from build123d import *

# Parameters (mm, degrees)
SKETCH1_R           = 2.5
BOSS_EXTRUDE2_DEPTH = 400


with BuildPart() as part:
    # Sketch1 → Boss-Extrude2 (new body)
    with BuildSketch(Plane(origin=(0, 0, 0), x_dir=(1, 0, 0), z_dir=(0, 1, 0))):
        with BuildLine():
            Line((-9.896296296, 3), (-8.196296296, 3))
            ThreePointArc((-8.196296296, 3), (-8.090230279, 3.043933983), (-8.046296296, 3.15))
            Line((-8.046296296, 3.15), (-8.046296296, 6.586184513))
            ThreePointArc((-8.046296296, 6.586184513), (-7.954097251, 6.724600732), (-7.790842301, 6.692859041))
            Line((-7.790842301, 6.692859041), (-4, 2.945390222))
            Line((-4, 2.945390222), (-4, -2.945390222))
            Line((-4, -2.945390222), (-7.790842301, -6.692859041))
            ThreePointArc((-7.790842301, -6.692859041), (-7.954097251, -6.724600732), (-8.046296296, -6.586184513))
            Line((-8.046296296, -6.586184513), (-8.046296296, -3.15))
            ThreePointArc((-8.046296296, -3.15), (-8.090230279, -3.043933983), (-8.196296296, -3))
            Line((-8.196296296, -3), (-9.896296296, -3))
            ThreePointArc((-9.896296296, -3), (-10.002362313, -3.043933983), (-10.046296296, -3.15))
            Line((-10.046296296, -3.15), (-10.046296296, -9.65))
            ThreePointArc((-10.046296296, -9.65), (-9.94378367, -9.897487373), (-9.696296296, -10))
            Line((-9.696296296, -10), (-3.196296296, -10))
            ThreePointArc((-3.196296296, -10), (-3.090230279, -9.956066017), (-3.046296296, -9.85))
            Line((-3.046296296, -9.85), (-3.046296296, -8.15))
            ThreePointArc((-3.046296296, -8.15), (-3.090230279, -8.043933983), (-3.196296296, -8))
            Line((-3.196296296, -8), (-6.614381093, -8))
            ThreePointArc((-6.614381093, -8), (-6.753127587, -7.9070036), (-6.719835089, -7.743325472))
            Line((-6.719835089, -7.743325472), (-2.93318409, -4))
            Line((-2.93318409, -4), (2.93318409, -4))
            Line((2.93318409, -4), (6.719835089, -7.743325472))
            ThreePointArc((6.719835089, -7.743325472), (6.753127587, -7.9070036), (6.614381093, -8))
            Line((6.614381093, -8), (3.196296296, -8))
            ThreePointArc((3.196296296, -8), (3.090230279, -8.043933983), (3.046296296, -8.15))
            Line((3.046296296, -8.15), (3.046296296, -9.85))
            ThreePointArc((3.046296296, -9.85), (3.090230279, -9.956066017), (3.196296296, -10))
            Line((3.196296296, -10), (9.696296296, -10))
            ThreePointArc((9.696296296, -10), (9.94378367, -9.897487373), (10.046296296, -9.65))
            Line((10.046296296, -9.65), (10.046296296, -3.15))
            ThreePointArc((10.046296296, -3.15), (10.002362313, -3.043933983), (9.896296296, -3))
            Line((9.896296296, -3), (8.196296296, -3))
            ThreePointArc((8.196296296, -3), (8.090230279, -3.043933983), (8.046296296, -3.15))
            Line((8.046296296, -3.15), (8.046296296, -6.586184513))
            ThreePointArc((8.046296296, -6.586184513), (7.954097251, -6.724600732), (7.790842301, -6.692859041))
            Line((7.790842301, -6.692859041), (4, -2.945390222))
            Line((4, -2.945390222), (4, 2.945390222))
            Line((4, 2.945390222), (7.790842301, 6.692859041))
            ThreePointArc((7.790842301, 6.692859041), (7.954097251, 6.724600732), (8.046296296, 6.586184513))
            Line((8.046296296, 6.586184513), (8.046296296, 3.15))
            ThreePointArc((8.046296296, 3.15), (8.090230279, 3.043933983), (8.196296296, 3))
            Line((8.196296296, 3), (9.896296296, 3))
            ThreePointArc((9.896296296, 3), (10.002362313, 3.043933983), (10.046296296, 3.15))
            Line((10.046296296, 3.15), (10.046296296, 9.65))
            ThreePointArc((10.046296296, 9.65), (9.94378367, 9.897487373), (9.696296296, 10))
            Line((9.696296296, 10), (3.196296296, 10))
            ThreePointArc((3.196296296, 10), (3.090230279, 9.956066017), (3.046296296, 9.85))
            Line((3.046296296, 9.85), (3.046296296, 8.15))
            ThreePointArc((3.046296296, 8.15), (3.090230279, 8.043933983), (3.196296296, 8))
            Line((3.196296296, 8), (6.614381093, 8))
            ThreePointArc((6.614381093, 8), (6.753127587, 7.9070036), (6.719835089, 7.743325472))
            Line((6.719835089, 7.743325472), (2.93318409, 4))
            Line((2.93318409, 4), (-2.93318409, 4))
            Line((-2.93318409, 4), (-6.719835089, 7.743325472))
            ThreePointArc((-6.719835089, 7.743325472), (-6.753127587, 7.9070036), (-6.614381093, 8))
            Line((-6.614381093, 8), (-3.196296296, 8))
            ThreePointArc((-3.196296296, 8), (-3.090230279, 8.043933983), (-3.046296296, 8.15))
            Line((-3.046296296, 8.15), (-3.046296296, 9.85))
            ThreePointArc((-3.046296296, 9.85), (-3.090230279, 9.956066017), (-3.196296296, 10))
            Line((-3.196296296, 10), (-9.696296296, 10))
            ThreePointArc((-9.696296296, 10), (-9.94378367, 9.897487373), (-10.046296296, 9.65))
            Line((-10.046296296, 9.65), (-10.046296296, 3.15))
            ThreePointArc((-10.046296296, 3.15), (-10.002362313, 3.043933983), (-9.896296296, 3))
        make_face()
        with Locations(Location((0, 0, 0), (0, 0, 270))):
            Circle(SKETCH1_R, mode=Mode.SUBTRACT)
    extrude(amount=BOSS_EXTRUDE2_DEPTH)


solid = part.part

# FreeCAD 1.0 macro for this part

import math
import FreeCAD as App
import Part
import Sketcher

V = App.Vector

doc = App.newDocument("Part")
params = doc.addObject("Spreadsheet::Sheet", "Params")
for row, (alias, value) in enumerate([
    ("sketch1_diameter", "5 mm"),
    ("sketch1_radius", "0.15 mm"),
    ("sketch1_radius2", "0.35 mm"),
    ("sketch1_width", "1.7 mm"),
    ("sketch1_width2", "6.5 mm"),
    ("pad1_length", "400 mm"),
], start=1):
    params.set(f"A{row}", alias)
    params.set(f"B{row}", "=" + value)
    params.setAlias(f"B{row}", alias)

body = doc.addObject("PartDesign::Body", "Body")

# Sketch on XZ plane
sketch1 = doc.addObject("Sketcher::SketchObject", "Sketch")
body.addObject(sketch1)
sketch1.AttachmentSupport = (doc.XZ_Plane, [""])
sketch1.MapMode = "FlatFace"
sketch1.addGeometry(Part.LineSegment(V(-9.9, -3, 0), V(-8.2, -3, 0)), False)
sketch1.addGeometry(Part.ArcOfCircle(Part.Circle(V(-8.2, -3.15, 0), V(0, 0, 1), 0.15), math.radians(0), math.radians(90)), False)
sketch1.addGeometry(Part.LineSegment(V(-8.05, -3.15, 0), V(-8.05, -6.59, 0)), False)
sketch1.addGeometry(Part.ArcOfCircle(Part.Circle(V(-7.9, -6.59, 0), V(0, 0, 1), 0.15), math.radians(180), math.radians(315)), False)
sketch1.addGeometry(Part.LineSegment(V(-7.79, -6.69, 0), V(-4, -2.95, 0)), False)
sketch1.addGeometry(Part.LineSegment(V(-4, -2.95, 0), V(-4, 2.95, 0)), False)
sketch1.addGeometry(Part.LineSegment(V(-4, 2.95, 0), V(-7.79, 6.69, 0)), False)
sketch1.addGeometry(Part.ArcOfCircle(Part.Circle(V(-7.9, 6.59, 0), V(0, 0, 1), 0.15), math.radians(45), math.radians(180)), False)
sketch1.addGeometry(Part.LineSegment(V(-8.05, 6.59, 0), V(-8.05, 3.15, 0)), False)
sketch1.addGeometry(Part.ArcOfCircle(Part.Circle(V(-8.2, 3.15, 0), V(0, 0, 1), 0.15), math.radians(-90), math.radians(0)), False)
sketch1.addGeometry(Part.LineSegment(V(-8.2, 3, 0), V(-9.9, 3, 0)), False)
sketch1.addGeometry(Part.ArcOfCircle(Part.Circle(V(-9.9, 3.15, 0), V(0, 0, 1), 0.15), math.radians(-180), math.radians(-90)), False)
sketch1.addGeometry(Part.LineSegment(V(-10.05, 3.15, 0), V(-10.05, 9.65, 0)), False)
sketch1.addGeometry(Part.ArcOfCircle(Part.Circle(V(-9.7, 9.65, 0), V(0, 0, 1), 0.35), math.radians(90), math.radians(180)), False)
sketch1.addGeometry(Part.LineSegment(V(-9.7, 10, 0), V(-3.2, 10, 0)), False)
sketch1.addGeometry(Part.ArcOfCircle(Part.Circle(V(-3.2, 9.85, 0), V(0, 0, 1), 0.15), math.radians(0), math.radians(90)), False)
sketch1.addGeometry(Part.LineSegment(V(-3.05, 9.85, 0), V(-3.05, 8.15, 0)), False)
sketch1.addGeometry(Part.ArcOfCircle(Part.Circle(V(-3.2, 8.15, 0), V(0, 0, 1), 0.15), math.radians(-90), math.radians(0)), False)
sketch1.addGeometry(Part.LineSegment(V(-3.2, 8, 0), V(-6.61, 8, 0)), False)
sketch1.addGeometry(Part.ArcOfCircle(Part.Circle(V(-6.61, 7.85, 0), V(0, 0, 1), 0.15), math.radians(90), math.radians(225)), False)
sketch1.addGeometry(Part.LineSegment(V(-6.72, 7.74, 0), V(-2.93, 4, 0)), False)
sketch1.addGeometry(Part.LineSegment(V(-2.93, 4, 0), V(2.93, 4, 0)), False)
sketch1.addGeometry(Part.LineSegment(V(2.93, 4, 0), V(6.72, 7.74, 0)), False)
sketch1.addGeometry(Part.ArcOfCircle(Part.Circle(V(6.61, 7.85, 0), V(0, 0, 1), 0.15), math.radians(-45), math.radians(90)), False)
sketch1.addGeometry(Part.LineSegment(V(6.61, 8, 0), V(3.2, 8, 0)), False)
sketch1.addGeometry(Part.ArcOfCircle(Part.Circle(V(3.2, 8.15, 0), V(0, 0, 1), 0.15), math.radians(-180), math.radians(-90)), False)
sketch1.addGeometry(Part.LineSegment(V(3.05, 8.15, 0), V(3.05, 9.85, 0)), False)
sketch1.addGeometry(Part.ArcOfCircle(Part.Circle(V(3.2, 9.85, 0), V(0, 0, 1), 0.15), math.radians(90), math.radians(180)), False)
sketch1.addGeometry(Part.LineSegment(V(3.2, 10, 0), V(9.7, 10, 0)), False)
sketch1.addGeometry(Part.ArcOfCircle(Part.Circle(V(9.7, 9.65, 0), V(0, 0, 1), 0.35), math.radians(0), math.radians(90)), False)
sketch1.addGeometry(Part.LineSegment(V(10.05, 9.65, 0), V(10.05, 3.15, 0)), False)
sketch1.addGeometry(Part.ArcOfCircle(Part.Circle(V(9.9, 3.15, 0), V(0, 0, 1), 0.15), math.radians(-90), math.radians(0)), False)
sketch1.addGeometry(Part.LineSegment(V(9.9, 3, 0), V(8.2, 3, 0)), False)
sketch1.addGeometry(Part.ArcOfCircle(Part.Circle(V(8.2, 3.15, 0), V(0, 0, 1), 0.15), math.radians(-180), math.radians(-90)), False)
sketch1.addGeometry(Part.LineSegment(V(8.05, 3.15, 0), V(8.05, 6.59, 0)), False)
sketch1.addGeometry(Part.ArcOfCircle(Part.Circle(V(7.9, 6.59, 0), V(0, 0, 1), 0.15), math.radians(0), math.radians(135)), False)
sketch1.addGeometry(Part.LineSegment(V(7.79, 6.69, 0), V(4, 2.95, 0)), False)
sketch1.addGeometry(Part.LineSegment(V(4, 2.95, 0), V(4, -2.95, 0)), False)
sketch1.addGeometry(Part.LineSegment(V(4, -2.95, 0), V(7.79, -6.69, 0)), False)
sketch1.addGeometry(Part.ArcOfCircle(Part.Circle(V(7.9, -6.59, 0), V(0, 0, 1), 0.15), math.radians(-135), math.radians(0)), False)
sketch1.addGeometry(Part.LineSegment(V(8.05, -6.59, 0), V(8.05, -3.15, 0)), False)
sketch1.addGeometry(Part.ArcOfCircle(Part.Circle(V(8.2, -3.15, 0), V(0, 0, 1), 0.15), math.radians(90), math.radians(180)), False)
sketch1.addGeometry(Part.LineSegment(V(8.2, -3, 0), V(9.9, -3, 0)), False)
sketch1.addGeometry(Part.ArcOfCircle(Part.Circle(V(9.9, -3.15, 0), V(0, 0, 1), 0.15), math.radians(0), math.radians(90)), False)
sketch1.addGeometry(Part.LineSegment(V(10.05, -3.15, 0), V(10.05, -9.65, 0)), False)
sketch1.addGeometry(Part.ArcOfCircle(Part.Circle(V(9.7, -9.65, 0), V(0, 0, 1), 0.35), math.radians(-90), math.radians(0)), False)
sketch1.addGeometry(Part.LineSegment(V(9.7, -10, 0), V(3.2, -10, 0)), False)
sketch1.addGeometry(Part.ArcOfCircle(Part.Circle(V(3.2, -9.85, 0), V(0, 0, 1), 0.15), math.radians(-180), math.radians(-90)), False)
sketch1.addGeometry(Part.LineSegment(V(3.05, -9.85, 0), V(3.05, -8.15, 0)), False)
sketch1.addGeometry(Part.ArcOfCircle(Part.Circle(V(3.2, -8.15, 0), V(0, 0, 1), 0.15), math.radians(90), math.radians(180)), False)
sketch1.addGeometry(Part.LineSegment(V(3.2, -8, 0), V(6.61, -8, 0)), False)
sketch1.addGeometry(Part.ArcOfCircle(Part.Circle(V(6.61, -7.85, 0), V(0, 0, 1), 0.15), math.radians(-90), math.radians(45)), False)
sketch1.addGeometry(Part.LineSegment(V(6.72, -7.74, 0), V(2.93, -4, 0)), False)
sketch1.addGeometry(Part.LineSegment(V(2.93, -4, 0), V(-2.93, -4, 0)), False)
sketch1.addGeometry(Part.LineSegment(V(-2.93, -4, 0), V(-6.72, -7.74, 0)), False)
sketch1.addGeometry(Part.ArcOfCircle(Part.Circle(V(-6.61, -7.85, 0), V(0, 0, 1), 0.15), math.radians(135), math.radians(270)), False)
sketch1.addGeometry(Part.LineSegment(V(-6.61, -8, 0), V(-3.2, -8, 0)), False)
sketch1.addGeometry(Part.ArcOfCircle(Part.Circle(V(-3.2, -8.15, 0), V(0, 0, 1), 0.15), math.radians(0), math.radians(90)), False)
sketch1.addGeometry(Part.LineSegment(V(-3.05, -8.15, 0), V(-3.05, -9.85, 0)), False)
sketch1.addGeometry(Part.ArcOfCircle(Part.Circle(V(-3.2, -9.85, 0), V(0, 0, 1), 0.15), math.radians(-90), math.radians(0)), False)
sketch1.addGeometry(Part.LineSegment(V(-3.2, -10, 0), V(-9.7, -10, 0)), False)
sketch1.addGeometry(Part.ArcOfCircle(Part.Circle(V(-9.7, -9.65, 0), V(0, 0, 1), 0.35), math.radians(180), math.radians(270)), False)
sketch1.addGeometry(Part.LineSegment(V(-10.05, -9.65, 0), V(-10.05, -3.15, 0)), False)
sketch1.addGeometry(Part.ArcOfCircle(Part.Circle(V(-9.9, -3.15, 0), V(0, 0, 1), 0.15), math.radians(90), math.radians(180)), False)
sketch1.addGeometry(Part.Circle(V(0, 0, 0), V(0, 0, 1), 2.5), False)
sketch1.addConstraint(Sketcher.Constraint("Tangent", 0, 2, 1, 2))
sketch1.addConstraint(Sketcher.Constraint("Tangent", 1, 1, 2, 1))
sketch1.addConstraint(Sketcher.Constraint("Tangent", 2, 2, 3, 1))
sketch1.addConstraint(Sketcher.Constraint("Tangent", 3, 2, 4, 1))
sketch1.addConstraint(Sketcher.Constraint("Coincident", 4, 2, 5, 1))
sketch1.addConstraint(Sketcher.Constraint("Coincident", 5, 2, 6, 1))
sketch1.addConstraint(Sketcher.Constraint("Tangent", 6, 2, 7, 1))
sketch1.addConstraint(Sketcher.Constraint("Tangent", 7, 2, 8, 1))
sketch1.addConstraint(Sketcher.Constraint("Tangent", 8, 2, 9, 2))
sketch1.addConstraint(Sketcher.Constraint("Tangent", 9, 1, 10, 1))
sketch1.addConstraint(Sketcher.Constraint("Tangent", 10, 2, 11, 2))
sketch1.addConstraint(Sketcher.Constraint("Tangent", 11, 1, 12, 1))
sketch1.addConstraint(Sketcher.Constraint("Tangent", 12, 2, 13, 2))
sketch1.addConstraint(Sketcher.Constraint("Tangent", 13, 1, 14, 1))
sketch1.addConstraint(Sketcher.Constraint("Tangent", 14, 2, 15, 2))
sketch1.addConstraint(Sketcher.Constraint("Tangent", 15, 1, 16, 1))
sketch1.addConstraint(Sketcher.Constraint("Tangent", 16, 2, 17, 2))
sketch1.addConstraint(Sketcher.Constraint("Tangent", 17, 1, 18, 1))
sketch1.addConstraint(Sketcher.Constraint("Tangent", 18, 2, 19, 1))
sketch1.addConstraint(Sketcher.Constraint("Tangent", 19, 2, 20, 1))
sketch1.addConstraint(Sketcher.Constraint("Coincident", 20, 2, 21, 1))
sketch1.addConstraint(Sketcher.Constraint("Coincident", 21, 2, 22, 1))
sketch1.addConstraint(Sketcher.Constraint("Tangent", 22, 2, 23, 1))
sketch1.addConstraint(Sketcher.Constraint("Tangent", 23, 2, 24, 1))
sketch1.addConstraint(Sketcher.Constraint("Tangent", 24, 2, 25, 2))
sketch1.addConstraint(Sketcher.Constraint("Tangent", 25, 1, 26, 1))
sketch1.addConstraint(Sketcher.Constraint("Tangent", 26, 2, 27, 2))
sketch1.addConstraint(Sketcher.Constraint("Tangent", 27, 1, 28, 1))
sketch1.addConstraint(Sketcher.Constraint("Tangent", 28, 2, 29, 2))
sketch1.addConstraint(Sketcher.Constraint("Tangent", 29, 1, 30, 1))
sketch1.addConstraint(Sketcher.Constraint("Tangent", 30, 2, 31, 2))
sketch1.addConstraint(Sketcher.Constraint("Tangent", 31, 1, 32, 1))
sketch1.addConstraint(Sketcher.Constraint("Tangent", 32, 2, 33, 2))
sketch1.addConstraint(Sketcher.Constraint("Tangent", 33, 1, 34, 1))
sketch1.addConstraint(Sketcher.Constraint("Tangent", 34, 2, 35, 1))
sketch1.addConstraint(Sketcher.Constraint("Tangent", 35, 2, 36, 1))
sketch1.addConstraint(Sketcher.Constraint("Coincident", 36, 2, 37, 1))
sketch1.addConstraint(Sketcher.Constraint("Coincident", 37, 2, 38, 1))
sketch1.addConstraint(Sketcher.Constraint("Tangent", 38, 2, 39, 1))
sketch1.addConstraint(Sketcher.Constraint("Tangent", 39, 2, 40, 1))
sketch1.addConstraint(Sketcher.Constraint("Tangent", 40, 2, 41, 2))
sketch1.addConstraint(Sketcher.Constraint("Tangent", 41, 1, 42, 1))
sketch1.addConstraint(Sketcher.Constraint("Tangent", 42, 2, 43, 2))
sketch1.addConstraint(Sketcher.Constraint("Tangent", 43, 1, 44, 1))
sketch1.addConstraint(Sketcher.Constraint("Tangent", 44, 2, 45, 2))
sketch1.addConstraint(Sketcher.Constraint("Tangent", 45, 1, 46, 1))
sketch1.addConstraint(Sketcher.Constraint("Tangent", 46, 2, 47, 2))
sketch1.addConstraint(Sketcher.Constraint("Tangent", 47, 1, 48, 1))
sketch1.addConstraint(Sketcher.Constraint("Tangent", 48, 2, 49, 2))
sketch1.addConstraint(Sketcher.Constraint("Tangent", 49, 1, 50, 1))
sketch1.addConstraint(Sketcher.Constraint("Tangent", 50, 2, 51, 1))
sketch1.addConstraint(Sketcher.Constraint("Tangent", 51, 2, 52, 1))
sketch1.addConstraint(Sketcher.Constraint("Coincident", 52, 2, 53, 1))
sketch1.addConstraint(Sketcher.Constraint("Coincident", 53, 2, 54, 1))
sketch1.addConstraint(Sketcher.Constraint("Tangent", 54, 2, 55, 1))
sketch1.addConstraint(Sketcher.Constraint("Tangent", 55, 2, 56, 1))
sketch1.addConstraint(Sketcher.Constraint("Tangent", 56, 2, 57, 2))
sketch1.addConstraint(Sketcher.Constraint("Tangent", 57, 1, 58, 1))
sketch1.addConstraint(Sketcher.Constraint("Tangent", 58, 2, 59, 2))
sketch1.addConstraint(Sketcher.Constraint("Tangent", 59, 1, 60, 1))
sketch1.addConstraint(Sketcher.Constraint("Tangent", 60, 2, 61, 2))
sketch1.addConstraint(Sketcher.Constraint("Tangent", 61, 1, 62, 1))
sketch1.addConstraint(Sketcher.Constraint("Tangent", 62, 2, 63, 2))
sketch1.addConstraint(Sketcher.Constraint("Tangent", 63, 1, 0, 1))
sketch1.addConstraint(Sketcher.Constraint("Horizontal", 0))
sketch1.addConstraint(Sketcher.Constraint("Vertical", 2))
sketch1.addConstraint(Sketcher.Constraint("Vertical", 5))
sketch1.addConstraint(Sketcher.Constraint("Vertical", 8))
sketch1.addConstraint(Sketcher.Constraint("Horizontal", 10))
sketch1.addConstraint(Sketcher.Constraint("Vertical", 12))
sketch1.addConstraint(Sketcher.Constraint("Horizontal", 14))
sketch1.addConstraint(Sketcher.Constraint("Vertical", 16))
sketch1.addConstraint(Sketcher.Constraint("Horizontal", 18))
sketch1.addConstraint(Sketcher.Constraint("Horizontal", 21))
sketch1.addConstraint(Sketcher.Constraint("Horizontal", 24))
sketch1.addConstraint(Sketcher.Constraint("Vertical", 26))
sketch1.addConstraint(Sketcher.Constraint("Horizontal", 28))
sketch1.addConstraint(Sketcher.Constraint("Vertical", 30))
sketch1.addConstraint(Sketcher.Constraint("Horizontal", 32))
sketch1.addConstraint(Sketcher.Constraint("Vertical", 34))
sketch1.addConstraint(Sketcher.Constraint("Vertical", 37))
sketch1.addConstraint(Sketcher.Constraint("Vertical", 40))
sketch1.addConstraint(Sketcher.Constraint("Horizontal", 42))
sketch1.addConstraint(Sketcher.Constraint("Vertical", 44))
sketch1.addConstraint(Sketcher.Constraint("Horizontal", 46))
sketch1.addConstraint(Sketcher.Constraint("Vertical", 48))
sketch1.addConstraint(Sketcher.Constraint("Horizontal", 50))
sketch1.addConstraint(Sketcher.Constraint("Horizontal", 53))
sketch1.addConstraint(Sketcher.Constraint("Horizontal", 56))
sketch1.addConstraint(Sketcher.Constraint("Vertical", 58))
sketch1.addConstraint(Sketcher.Constraint("Horizontal", 60))
sketch1.addConstraint(Sketcher.Constraint("Vertical", 62))
sketch1.addConstraint(Sketcher.Constraint("Coincident", 64, 3, -1, 1))
sketch1.addConstraint(Sketcher.Constraint("Equal", 1, 3))
sketch1.addConstraint(Sketcher.Constraint("Equal", 3, 7))
sketch1.addConstraint(Sketcher.Constraint("Equal", 7, 9))
sketch1.addConstraint(Sketcher.Constraint("Equal", 9, 11))
sketch1.addConstraint(Sketcher.Constraint("Equal", 11, 15))
sketch1.addConstraint(Sketcher.Constraint("Equal", 15, 17))
sketch1.addConstraint(Sketcher.Constraint("Equal", 17, 19))
sketch1.addConstraint(Sketcher.Constraint("Equal", 19, 23))
sketch1.addConstraint(Sketcher.Constraint("Equal", 23, 25))
sketch1.addConstraint(Sketcher.Constraint("Equal", 25, 27))
sketch1.addConstraint(Sketcher.Constraint("Equal", 13, 29))
sketch1.addConstraint(Sketcher.Constraint("Equal", 27, 31))
sketch1.addConstraint(Sketcher.Constraint("Equal", 31, 33))
sketch1.addConstraint(Sketcher.Constraint("Equal", 33, 35))
sketch1.addConstraint(Sketcher.Constraint("Equal", 35, 39))
sketch1.addConstraint(Sketcher.Constraint("Equal", 39, 41))
sketch1.addConstraint(Sketcher.Constraint("Equal", 41, 43))
sketch1.addConstraint(Sketcher.Constraint("Equal", 29, 45))
sketch1.addConstraint(Sketcher.Constraint("Equal", 43, 47))
sketch1.addConstraint(Sketcher.Constraint("Equal", 47, 49))
sketch1.addConstraint(Sketcher.Constraint("Equal", 49, 51))
sketch1.addConstraint(Sketcher.Constraint("Equal", 51, 55))
sketch1.addConstraint(Sketcher.Constraint("Equal", 55, 57))
sketch1.addConstraint(Sketcher.Constraint("Equal", 57, 59))
sketch1.addConstraint(Sketcher.Constraint("Equal", 45, 61))
sketch1.addConstraint(Sketcher.Constraint("Equal", 59, 63))
sketch1.addConstraint(Sketcher.Constraint("Symmetric", 1, 3, 33, 3, -1, 1))
sketch1.addConstraint(Sketcher.Constraint("Symmetric", 7, 3, 39, 3, -1, 1))
sketch1.addConstraint(Sketcher.Constraint("Symmetric", 11, 3, 43, 3, -1, 1))
sketch1.addConstraint(Sketcher.Constraint("Symmetric", 15, 3, 47, 3, -1, 1))
sketch1.addConstraint(Sketcher.Constraint("Symmetric", 19, 3, 51, 3, -1, 1))
sketch1.addConstraint(Sketcher.Constraint("Symmetric", 23, 3, 55, 3, -1, 1))
sketch1.addConstraint(Sketcher.Constraint("Symmetric", 27, 3, 59, 3, -1, 1))
sketch1.addConstraint(Sketcher.Constraint("Symmetric", 3, 2, 35, 2, -1, 1))
sketch1.addConstraint(Sketcher.Constraint("Symmetric", 5, 2, 37, 2, -1, 1))
sketch1.addConstraint(Sketcher.Constraint("Symmetric", 20, 2, 52, 2, -1, 1))
sketch1.addConstraint(Sketcher.Constraint("Symmetric", 19, 3, 23, 3, -2))
sketch1.addConstraint(Sketcher.Constraint("Symmetric", 15, 3, 27, 3, -2))
sketch1.addConstraint(Sketcher.Constraint("Symmetric", 11, 3, 31, 3, -2))
sketch1.addConstraint(Sketcher.Constraint("Symmetric", 7, 3, 35, 3, -2))
sketch1.addConstraint(Sketcher.Constraint("Parallel", 6, 20))
sketch1.addConstraint(Sketcher.Constraint("Parallel", 4, 22))
sketch1.addConstraint(Sketcher.Constraint("Parallel", 36, 54))
sketch1.addConstraint(Sketcher.Constraint("Horizontal", 19, 2, 22, 2))
sketch1.addConstraint(Sketcher.Constraint("Vertical", 13, 3, 61, 3))
sketch1.addConstraint(Sketcher.Constraint("Equal", 60, 12))
sketch1.addConstraint(Sketcher.Constraint("Equal", 42, 16))
sketch1.addConstraint(Sketcher.Constraint("Diameter", 64, 5.0))
sketch1.addConstraint(Sketcher.Constraint("Radius", 1, 0.15))
sketch1.addConstraint(Sketcher.Constraint("Radius", 13, 0.35))
sketch1.addConstraint(Sketcher.Constraint("DistanceX", 0, 1, 0, 2, 1.7))
sketch1.addConstraint(Sketcher.Constraint("DistanceX", 14, 1, 14, 2, 6.5))
sketch1.addConstraint(Sketcher.Constraint("DistanceY", 0, 2, -1, 1, 3.0))
sketch1.addConstraint(Sketcher.Constraint("DistanceX", 4, 2, -1, 1, 4.0))
sketch1.addConstraint(Sketcher.Constraint("DistanceY", -1, 1, 20, 2, 4.0))
sketch1.addConstraint(Sketcher.Constraint("DistanceX", 21, 1, 21, 2, 5.866368))
sketch1.addConstraint(Sketcher.Constraint("DistanceY", 5, 1, 5, 2, 5.89078))
sketch1.addConstraint(Sketcher.Constraint("Distance", 4, 5.330479))
sketch1.addConstraint(Sketcher.Constraint("DistanceX", 18, 2, 18, 1, 3.418085))
sketch1.setExpression("Constraints[140]", "Params.sketch1_diameter")
sketch1.setExpression("Constraints[141]", "Params.sketch1_radius")
sketch1.setExpression("Constraints[142]", "Params.sketch1_radius2")
sketch1.setExpression("Constraints[143]", "Params.sketch1_width")
sketch1.setExpression("Constraints[144]", "Params.sketch1_width2")
pad1 = doc.addObject("PartDesign::Pad", "Pad")
body.addObject(pad1)
pad1.Profile = sketch1
pad1.setExpression("Length", "Params.pad1_length")
pad1.Reversed = True

doc.recompute()
